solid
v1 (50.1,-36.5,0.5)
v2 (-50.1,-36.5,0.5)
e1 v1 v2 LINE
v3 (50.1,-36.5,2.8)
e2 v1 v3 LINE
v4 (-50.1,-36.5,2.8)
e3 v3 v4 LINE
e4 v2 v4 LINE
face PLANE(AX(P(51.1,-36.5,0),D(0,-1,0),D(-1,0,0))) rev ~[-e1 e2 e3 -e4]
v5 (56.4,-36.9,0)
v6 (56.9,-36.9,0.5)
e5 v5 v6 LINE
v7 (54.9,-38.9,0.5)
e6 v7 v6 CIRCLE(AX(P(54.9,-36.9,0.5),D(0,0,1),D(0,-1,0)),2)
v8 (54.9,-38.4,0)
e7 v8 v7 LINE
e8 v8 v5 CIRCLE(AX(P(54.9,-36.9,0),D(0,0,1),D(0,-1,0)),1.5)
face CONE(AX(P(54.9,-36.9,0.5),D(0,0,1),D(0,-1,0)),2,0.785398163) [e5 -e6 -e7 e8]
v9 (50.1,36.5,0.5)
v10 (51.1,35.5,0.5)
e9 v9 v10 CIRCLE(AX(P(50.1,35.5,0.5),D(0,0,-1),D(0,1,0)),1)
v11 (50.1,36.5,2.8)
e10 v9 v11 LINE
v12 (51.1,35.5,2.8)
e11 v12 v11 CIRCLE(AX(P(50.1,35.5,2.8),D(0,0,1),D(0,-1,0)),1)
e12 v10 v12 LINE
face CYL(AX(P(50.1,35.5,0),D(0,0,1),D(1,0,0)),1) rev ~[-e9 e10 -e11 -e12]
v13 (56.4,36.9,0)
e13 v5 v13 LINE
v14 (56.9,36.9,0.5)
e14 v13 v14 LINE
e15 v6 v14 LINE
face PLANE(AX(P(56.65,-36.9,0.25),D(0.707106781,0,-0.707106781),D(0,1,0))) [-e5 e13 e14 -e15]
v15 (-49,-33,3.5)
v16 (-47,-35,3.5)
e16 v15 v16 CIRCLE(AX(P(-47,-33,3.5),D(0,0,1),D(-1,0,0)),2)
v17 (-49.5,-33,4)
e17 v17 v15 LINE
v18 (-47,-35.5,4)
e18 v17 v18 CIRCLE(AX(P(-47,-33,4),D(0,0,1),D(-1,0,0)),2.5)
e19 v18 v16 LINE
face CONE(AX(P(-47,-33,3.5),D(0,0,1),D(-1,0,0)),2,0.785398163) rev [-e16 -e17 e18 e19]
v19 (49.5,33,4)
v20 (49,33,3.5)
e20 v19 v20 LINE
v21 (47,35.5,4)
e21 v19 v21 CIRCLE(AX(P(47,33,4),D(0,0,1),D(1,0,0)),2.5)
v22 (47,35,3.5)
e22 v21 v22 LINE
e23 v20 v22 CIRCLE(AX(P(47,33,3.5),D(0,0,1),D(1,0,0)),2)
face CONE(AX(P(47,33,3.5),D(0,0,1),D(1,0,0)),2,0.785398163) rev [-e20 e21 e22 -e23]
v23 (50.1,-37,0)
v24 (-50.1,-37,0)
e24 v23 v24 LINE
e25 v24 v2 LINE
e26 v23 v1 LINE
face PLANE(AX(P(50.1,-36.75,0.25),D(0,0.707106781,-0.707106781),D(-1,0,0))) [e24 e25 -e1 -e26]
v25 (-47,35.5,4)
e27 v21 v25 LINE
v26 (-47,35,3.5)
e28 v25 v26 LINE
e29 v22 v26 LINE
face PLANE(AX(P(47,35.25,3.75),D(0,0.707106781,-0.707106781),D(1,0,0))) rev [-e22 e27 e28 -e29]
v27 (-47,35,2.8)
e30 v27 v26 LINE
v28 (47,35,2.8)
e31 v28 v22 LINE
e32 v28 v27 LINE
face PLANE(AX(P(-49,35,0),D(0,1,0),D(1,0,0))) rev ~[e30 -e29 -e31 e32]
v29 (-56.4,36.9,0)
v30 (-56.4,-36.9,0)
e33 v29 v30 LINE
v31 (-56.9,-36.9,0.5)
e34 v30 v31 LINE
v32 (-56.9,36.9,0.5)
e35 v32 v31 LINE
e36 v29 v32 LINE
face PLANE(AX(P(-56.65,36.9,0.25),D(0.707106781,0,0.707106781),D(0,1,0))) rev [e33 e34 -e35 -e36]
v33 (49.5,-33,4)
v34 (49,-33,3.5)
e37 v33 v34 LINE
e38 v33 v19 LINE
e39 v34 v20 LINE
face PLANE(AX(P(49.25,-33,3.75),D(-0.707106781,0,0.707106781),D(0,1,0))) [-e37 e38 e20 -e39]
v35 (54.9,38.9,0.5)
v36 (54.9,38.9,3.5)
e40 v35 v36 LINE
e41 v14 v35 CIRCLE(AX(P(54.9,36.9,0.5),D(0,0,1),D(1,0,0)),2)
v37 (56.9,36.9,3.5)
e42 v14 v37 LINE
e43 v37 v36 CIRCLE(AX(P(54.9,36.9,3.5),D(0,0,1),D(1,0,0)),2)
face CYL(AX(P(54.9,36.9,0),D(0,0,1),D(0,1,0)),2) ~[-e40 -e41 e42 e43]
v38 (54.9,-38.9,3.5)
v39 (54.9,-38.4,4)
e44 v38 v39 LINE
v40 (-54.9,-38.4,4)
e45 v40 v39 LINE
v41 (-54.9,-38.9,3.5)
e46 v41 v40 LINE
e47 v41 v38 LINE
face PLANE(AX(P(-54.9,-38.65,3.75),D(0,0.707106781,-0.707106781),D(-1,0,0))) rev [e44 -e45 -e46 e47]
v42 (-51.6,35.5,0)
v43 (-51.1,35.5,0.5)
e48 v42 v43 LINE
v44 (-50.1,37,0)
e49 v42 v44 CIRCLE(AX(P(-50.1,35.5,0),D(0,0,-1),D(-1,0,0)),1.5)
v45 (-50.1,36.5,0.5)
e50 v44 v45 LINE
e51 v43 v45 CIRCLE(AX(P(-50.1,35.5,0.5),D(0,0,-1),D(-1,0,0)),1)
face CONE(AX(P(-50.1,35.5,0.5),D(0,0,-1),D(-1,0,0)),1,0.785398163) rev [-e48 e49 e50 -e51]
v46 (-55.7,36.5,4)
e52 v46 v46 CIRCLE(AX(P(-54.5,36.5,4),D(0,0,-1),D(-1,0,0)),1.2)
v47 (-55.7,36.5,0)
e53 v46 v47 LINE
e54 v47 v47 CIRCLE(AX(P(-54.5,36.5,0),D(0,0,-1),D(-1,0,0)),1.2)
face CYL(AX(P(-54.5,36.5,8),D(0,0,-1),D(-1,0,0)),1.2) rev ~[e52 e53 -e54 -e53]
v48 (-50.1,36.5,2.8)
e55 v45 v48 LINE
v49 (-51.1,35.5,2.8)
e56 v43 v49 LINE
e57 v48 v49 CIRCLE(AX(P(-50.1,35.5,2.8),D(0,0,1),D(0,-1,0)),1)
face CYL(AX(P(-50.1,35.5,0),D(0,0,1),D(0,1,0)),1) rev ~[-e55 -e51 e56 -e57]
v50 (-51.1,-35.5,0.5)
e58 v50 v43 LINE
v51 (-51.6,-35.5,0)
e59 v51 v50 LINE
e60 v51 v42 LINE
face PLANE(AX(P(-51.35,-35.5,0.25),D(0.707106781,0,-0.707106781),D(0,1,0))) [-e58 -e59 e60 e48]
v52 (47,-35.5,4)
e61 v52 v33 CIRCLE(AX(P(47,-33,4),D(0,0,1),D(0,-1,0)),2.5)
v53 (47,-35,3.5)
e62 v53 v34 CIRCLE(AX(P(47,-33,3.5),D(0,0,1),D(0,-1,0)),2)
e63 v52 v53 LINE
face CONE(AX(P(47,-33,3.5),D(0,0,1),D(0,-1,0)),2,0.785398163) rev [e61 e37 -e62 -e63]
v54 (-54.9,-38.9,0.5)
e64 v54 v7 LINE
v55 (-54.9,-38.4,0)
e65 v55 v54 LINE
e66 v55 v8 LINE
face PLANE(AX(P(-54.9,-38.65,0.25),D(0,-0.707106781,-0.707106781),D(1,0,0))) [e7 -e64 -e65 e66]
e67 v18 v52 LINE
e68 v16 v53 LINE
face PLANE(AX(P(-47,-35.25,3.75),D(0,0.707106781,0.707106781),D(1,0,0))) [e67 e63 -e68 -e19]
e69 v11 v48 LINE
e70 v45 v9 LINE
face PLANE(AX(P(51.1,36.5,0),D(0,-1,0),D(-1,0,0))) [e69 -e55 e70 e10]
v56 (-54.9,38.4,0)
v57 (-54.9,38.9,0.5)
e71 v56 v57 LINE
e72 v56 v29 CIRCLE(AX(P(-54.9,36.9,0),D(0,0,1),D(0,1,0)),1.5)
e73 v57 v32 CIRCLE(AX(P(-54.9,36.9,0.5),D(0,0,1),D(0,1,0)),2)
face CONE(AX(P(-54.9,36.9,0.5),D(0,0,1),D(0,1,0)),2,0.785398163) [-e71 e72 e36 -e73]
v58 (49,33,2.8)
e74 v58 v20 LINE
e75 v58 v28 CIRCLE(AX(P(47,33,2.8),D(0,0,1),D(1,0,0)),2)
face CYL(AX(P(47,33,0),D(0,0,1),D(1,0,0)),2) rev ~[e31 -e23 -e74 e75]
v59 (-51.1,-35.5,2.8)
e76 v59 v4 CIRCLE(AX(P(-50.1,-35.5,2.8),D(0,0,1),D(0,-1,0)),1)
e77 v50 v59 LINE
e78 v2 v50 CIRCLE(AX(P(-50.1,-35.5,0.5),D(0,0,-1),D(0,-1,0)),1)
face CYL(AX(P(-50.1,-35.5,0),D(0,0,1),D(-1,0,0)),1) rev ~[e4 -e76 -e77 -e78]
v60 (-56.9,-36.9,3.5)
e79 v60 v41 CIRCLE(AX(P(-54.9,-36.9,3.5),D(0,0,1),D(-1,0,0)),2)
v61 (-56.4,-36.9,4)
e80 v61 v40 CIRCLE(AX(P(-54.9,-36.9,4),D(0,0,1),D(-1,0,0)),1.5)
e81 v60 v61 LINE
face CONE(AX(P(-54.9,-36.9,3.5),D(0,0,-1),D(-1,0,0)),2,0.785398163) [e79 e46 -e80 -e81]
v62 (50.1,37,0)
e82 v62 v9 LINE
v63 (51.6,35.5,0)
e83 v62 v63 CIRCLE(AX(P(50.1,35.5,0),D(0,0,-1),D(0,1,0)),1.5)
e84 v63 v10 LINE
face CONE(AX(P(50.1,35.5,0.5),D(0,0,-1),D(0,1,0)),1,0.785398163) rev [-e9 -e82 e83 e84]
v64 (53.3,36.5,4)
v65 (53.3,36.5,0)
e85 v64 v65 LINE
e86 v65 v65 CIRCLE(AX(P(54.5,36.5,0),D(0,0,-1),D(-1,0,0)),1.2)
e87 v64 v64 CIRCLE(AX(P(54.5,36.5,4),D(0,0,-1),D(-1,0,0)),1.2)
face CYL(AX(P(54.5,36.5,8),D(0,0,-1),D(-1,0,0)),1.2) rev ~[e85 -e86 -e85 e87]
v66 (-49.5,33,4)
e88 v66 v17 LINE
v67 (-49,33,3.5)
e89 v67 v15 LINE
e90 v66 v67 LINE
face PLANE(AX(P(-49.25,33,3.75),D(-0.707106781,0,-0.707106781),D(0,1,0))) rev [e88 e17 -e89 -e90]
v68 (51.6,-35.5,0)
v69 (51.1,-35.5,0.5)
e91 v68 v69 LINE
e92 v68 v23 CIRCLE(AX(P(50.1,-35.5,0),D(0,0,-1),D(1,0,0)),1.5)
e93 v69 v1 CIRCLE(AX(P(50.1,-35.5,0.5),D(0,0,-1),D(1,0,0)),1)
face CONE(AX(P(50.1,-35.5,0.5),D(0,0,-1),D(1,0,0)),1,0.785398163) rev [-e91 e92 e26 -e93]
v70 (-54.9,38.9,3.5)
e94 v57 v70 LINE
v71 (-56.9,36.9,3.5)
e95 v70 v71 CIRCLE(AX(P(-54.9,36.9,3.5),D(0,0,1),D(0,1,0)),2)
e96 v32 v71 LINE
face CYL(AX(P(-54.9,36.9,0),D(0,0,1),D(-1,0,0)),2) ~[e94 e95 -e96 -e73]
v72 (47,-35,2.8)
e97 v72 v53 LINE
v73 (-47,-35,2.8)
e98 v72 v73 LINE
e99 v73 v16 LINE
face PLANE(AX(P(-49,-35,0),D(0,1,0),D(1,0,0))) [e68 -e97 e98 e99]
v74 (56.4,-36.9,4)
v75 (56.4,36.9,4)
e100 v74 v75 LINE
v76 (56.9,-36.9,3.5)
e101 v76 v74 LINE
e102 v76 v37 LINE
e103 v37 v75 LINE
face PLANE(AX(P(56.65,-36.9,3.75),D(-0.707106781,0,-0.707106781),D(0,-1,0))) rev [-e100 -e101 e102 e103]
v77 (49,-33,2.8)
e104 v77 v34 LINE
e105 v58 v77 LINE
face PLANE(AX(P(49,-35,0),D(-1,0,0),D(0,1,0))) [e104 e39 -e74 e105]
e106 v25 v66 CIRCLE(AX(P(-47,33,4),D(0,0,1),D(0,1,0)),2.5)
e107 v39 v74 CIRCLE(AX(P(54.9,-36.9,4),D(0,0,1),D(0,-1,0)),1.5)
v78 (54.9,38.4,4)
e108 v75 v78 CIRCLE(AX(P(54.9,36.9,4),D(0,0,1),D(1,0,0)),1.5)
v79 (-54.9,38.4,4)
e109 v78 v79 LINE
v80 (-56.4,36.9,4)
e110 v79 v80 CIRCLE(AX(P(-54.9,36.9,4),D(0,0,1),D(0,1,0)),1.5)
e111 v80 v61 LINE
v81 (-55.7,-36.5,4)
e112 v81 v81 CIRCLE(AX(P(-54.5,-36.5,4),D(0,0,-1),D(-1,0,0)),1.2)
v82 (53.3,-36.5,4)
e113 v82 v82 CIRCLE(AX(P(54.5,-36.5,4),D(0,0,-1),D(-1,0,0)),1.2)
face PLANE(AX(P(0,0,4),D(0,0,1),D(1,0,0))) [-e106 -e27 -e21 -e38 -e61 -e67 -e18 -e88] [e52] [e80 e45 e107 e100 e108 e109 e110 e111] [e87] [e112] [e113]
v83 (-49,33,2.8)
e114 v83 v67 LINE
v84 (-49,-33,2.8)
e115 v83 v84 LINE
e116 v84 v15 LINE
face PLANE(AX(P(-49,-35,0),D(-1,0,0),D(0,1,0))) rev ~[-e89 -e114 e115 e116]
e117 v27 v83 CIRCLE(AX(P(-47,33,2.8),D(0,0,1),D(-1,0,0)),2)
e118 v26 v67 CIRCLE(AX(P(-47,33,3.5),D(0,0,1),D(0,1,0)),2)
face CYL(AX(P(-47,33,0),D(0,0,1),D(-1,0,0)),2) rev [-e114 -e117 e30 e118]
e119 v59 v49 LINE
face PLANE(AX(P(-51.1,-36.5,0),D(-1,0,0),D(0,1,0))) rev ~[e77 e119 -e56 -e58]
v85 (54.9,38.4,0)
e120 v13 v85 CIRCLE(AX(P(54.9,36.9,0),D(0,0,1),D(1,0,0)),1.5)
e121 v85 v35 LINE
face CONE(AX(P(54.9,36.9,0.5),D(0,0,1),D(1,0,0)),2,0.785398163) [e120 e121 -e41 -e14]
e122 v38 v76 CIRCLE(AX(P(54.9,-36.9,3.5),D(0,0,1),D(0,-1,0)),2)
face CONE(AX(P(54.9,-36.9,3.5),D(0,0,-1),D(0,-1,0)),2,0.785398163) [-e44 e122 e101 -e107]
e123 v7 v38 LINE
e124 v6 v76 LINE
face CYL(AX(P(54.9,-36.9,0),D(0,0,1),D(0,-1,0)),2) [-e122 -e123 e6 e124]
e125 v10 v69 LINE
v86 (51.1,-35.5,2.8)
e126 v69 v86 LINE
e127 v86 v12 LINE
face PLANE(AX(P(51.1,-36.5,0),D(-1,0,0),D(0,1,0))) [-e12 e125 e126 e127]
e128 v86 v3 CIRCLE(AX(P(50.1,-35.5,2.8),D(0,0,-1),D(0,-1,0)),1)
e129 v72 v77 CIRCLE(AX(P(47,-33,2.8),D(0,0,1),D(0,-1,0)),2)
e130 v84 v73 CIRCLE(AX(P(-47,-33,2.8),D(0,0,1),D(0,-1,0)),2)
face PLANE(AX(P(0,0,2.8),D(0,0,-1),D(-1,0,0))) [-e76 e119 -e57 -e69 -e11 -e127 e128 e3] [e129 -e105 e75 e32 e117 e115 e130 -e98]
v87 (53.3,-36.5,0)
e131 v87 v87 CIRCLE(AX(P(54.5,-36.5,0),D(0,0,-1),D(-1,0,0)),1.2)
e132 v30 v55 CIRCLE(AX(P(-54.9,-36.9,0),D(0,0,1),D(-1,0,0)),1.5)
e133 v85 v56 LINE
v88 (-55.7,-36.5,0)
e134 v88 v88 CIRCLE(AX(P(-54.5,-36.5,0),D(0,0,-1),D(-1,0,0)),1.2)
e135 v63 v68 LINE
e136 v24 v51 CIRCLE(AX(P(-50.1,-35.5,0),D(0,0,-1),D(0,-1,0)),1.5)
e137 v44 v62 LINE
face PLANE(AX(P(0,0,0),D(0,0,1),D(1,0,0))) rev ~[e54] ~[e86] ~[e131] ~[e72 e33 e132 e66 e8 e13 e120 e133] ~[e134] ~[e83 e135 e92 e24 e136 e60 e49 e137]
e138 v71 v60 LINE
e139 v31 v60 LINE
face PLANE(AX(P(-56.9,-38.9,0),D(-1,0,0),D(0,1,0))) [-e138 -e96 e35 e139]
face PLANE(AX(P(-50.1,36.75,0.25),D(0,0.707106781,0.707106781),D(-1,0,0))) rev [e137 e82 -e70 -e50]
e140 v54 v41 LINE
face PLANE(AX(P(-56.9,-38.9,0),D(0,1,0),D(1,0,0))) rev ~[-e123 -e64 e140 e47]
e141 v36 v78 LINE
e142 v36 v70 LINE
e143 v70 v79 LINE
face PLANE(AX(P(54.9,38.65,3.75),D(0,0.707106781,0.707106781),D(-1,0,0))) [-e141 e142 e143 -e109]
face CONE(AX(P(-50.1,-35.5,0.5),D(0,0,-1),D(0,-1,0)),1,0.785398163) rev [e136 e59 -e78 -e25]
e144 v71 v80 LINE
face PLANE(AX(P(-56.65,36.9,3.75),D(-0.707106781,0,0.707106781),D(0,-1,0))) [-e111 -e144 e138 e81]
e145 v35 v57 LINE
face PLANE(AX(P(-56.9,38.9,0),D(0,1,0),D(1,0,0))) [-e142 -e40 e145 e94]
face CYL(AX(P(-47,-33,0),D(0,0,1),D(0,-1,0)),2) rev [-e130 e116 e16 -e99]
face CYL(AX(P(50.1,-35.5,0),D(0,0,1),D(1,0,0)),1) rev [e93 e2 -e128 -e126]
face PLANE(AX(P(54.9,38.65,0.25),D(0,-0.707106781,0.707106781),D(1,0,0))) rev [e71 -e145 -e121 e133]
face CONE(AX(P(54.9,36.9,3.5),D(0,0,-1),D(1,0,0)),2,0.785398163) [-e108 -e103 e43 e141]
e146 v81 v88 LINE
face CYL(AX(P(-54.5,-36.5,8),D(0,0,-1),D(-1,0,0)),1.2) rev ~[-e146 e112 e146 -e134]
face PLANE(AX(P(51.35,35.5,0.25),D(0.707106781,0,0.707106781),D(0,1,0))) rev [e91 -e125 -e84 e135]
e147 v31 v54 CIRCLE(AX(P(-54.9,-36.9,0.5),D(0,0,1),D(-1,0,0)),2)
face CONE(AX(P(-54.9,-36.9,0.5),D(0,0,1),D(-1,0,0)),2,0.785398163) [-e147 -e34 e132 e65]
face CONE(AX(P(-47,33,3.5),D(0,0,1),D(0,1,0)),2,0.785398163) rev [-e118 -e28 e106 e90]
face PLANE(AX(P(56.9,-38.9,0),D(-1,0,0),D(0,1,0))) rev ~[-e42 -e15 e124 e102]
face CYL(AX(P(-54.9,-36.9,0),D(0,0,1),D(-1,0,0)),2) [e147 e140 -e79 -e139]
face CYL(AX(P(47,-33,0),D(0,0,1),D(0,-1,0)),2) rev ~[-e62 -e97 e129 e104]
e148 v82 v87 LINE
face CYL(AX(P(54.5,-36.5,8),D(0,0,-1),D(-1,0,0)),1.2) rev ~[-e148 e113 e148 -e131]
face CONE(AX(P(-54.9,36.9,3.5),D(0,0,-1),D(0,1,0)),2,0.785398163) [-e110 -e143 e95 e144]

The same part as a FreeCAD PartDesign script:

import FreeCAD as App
import Part
import Sketcher


def edges_at(feature, points):
    """Names of the edges that pass closest to the given points."""
    edges = feature.Shape.Edges
    near = lambda p: min(range(len(edges)), key=lambda i: edges[i].distToShape(Part.Vertex(*p))[0])
    return sorted({f"Edge{near(p) + 1}" for p in points})

doc = App.newDocument("Part")
body = doc.addObject("PartDesign::Body", "Body")

# Sketch on XY plane
sketch1 = body.newObject("Sketcher::SketchObject", "Sketch")
sketch1.AttachmentSupport = (doc.getObject("XY_Plane"), [""])
sketch1.MapMode = "FlatFace"
sketch1.addGeometry(Part.LineSegment(App.Vector(-57, 39, 0), App.Vector(-57, -39, 0)), False)
sketch1.addGeometry(Part.LineSegment(App.Vector(-57, -39, 0), App.Vector(57, -39, 0)), False)
sketch1.addGeometry(Part.LineSegment(App.Vector(57, -39, 0), App.Vector(57, 39, 0)), False)
sketch1.addGeometry(Part.LineSegment(App.Vector(57, 39, 0), App.Vector(-57, 39, 0)), False)
sketch1.addGeometry(Part.LineSegment(App.Vector(49, -35, 0), App.Vector(-49, -35, 0)), False)
sketch1.addGeometry(Part.LineSegment(App.Vector(-49, -35, 0), App.Vector(-49, 35, 0)), False)
sketch1.addGeometry(Part.LineSegment(App.Vector(-49, 35, 0), App.Vector(49, 35, 0)), False)
sketch1.addGeometry(Part.LineSegment(App.Vector(49, 35, 0), App.Vector(49, -35, 0)), False)
sketch1.addConstraint(Sketcher.Constraint("Coincident", 0, 2, 1, 1))
sketch1.addConstraint(Sketcher.Constraint("Coincident", 1, 2, 2, 1))
sketch1.addConstraint(Sketcher.Constraint("Coincident", 2, 2, 3, 1))
sketch1.addConstraint(Sketcher.Constraint("Coincident", 3, 2, 0, 1))
sketch1.addConstraint(Sketcher.Constraint("Coincident", 4, 2, 5, 1))
sketch1.addConstraint(Sketcher.Constraint("Coincident", 5, 2, 6, 1))
sketch1.addConstraint(Sketcher.Constraint("Coincident", 6, 2, 7, 1))
sketch1.addConstraint(Sketcher.Constraint("Coincident", 7, 2, 4, 1))
sketch1.addConstraint(Sketcher.Constraint("Vertical", 0))
sketch1.addConstraint(Sketcher.Constraint("Horizontal", 1))
sketch1.addConstraint(Sketcher.Constraint("Vertical", 2))
sketch1.addConstraint(Sketcher.Constraint("Horizontal", 3))
sketch1.addConstraint(Sketcher.Constraint("Horizontal", 4))
sketch1.addConstraint(Sketcher.Constraint("Vertical", 5))
sketch1.addConstraint(Sketcher.Constraint("Horizontal", 6))
sketch1.addConstraint(Sketcher.Constraint("Vertical", 7))
sketch1.addConstraint(Sketcher.Constraint("Symmetric", 0, 2, 2, 2, -1, 1))
sketch1.addConstraint(Sketcher.Constraint("Symmetric", 4, 2, 6, 2, -1, 1))
sketch1.addConstraint(Sketcher.Constraint("DistanceX", 4, 2, 4, 1, 98.0))
sketch1.addConstraint(Sketcher.Constraint("DistanceY", 5, 1, 5, 2, 70.0))
sketch1.addConstraint(Sketcher.Constraint("DistanceX", 1, 1, 1, 2, 113.8))
sketch1.addConstraint(Sketcher.Constraint("DistanceY", 0, 2, 0, 1, 77.8))
pad1 = body.newObject("PartDesign::Pad", "Pad")
pad1.Profile = sketch1
pad1.Length = 4

# Sketch on XY plane
sketch2 = body.newObject("Sketcher::SketchObject", "Sketch001")
sketch2.AttachmentSupport = (doc.getObject("XY_Plane"), [""])
sketch2.MapMode = "FlatFace"
sketch2.AttachmentOffset = App.Placement(App.Vector(0, 0, 4), App.Rotation())
sketch2.addGeometry(Part.Circle(App.Vector(0, 0, 0), App.Vector(0, 0, 1), 1.2), False)
sketch2.addGeometry(Part.Circle(App.Vector(54.5, 36.5, 0), App.Vector(0, 0, 1), 1.2), False)
sketch2.addGeometry(Part.Circle(App.Vector(-54.5, -36.5, 0), App.Vector(0, 0, 1), 1.2), False)
sketch2.addGeometry(Part.Circle(App.Vector(-54.5, 36.5, 0), App.Vector(0, 0, 1), 1.2), False)
sketch2.addGeometry(Part.Circle(App.Vector(54.5, -36.5, 0), App.Vector(0, 0, 1), 1.2), False)
sketch2.addConstraint(Sketcher.Constraint("Coincident", 0, 3, -1, 1))
sketch2.addConstraint(Sketcher.Constraint("Equal", 0, 1))
sketch2.addConstraint(Sketcher.Constraint("Equal", 1, 2))
sketch2.addConstraint(Sketcher.Constraint("Equal", 2, 3))
sketch2.addConstraint(Sketcher.Constraint("Equal", 3, 4))
sketch2.addConstraint(Sketcher.Constraint("Symmetric", 1, 3, 2, 3, -1, 1))
sketch2.addConstraint(Sketcher.Constraint("Symmetric", 3, 3, 4, 3, -1, 1))
sketch2.addConstraint(Sketcher.Constraint("Symmetric", 1, 3, 3, 3, -2))
sketch2.addConstraint(Sketcher.Constraint("Diameter", 0, 2.4))
sketch2.addConstraint(Sketcher.Constraint("DistanceX", 2, 3, 1, 3, 109.0))
sketch2.addConstraint(Sketcher.Constraint("DistanceY", 2, 3, 1, 3, 73.0))
doc.recompute()
hole = body.newObject("PartDesign::Hole", "Hole")
hole.Profile = sketch2
hole.ThreadType = "None"
hole.Diameter = 2.4
hole.DepthType = "Dimension"
hole.Depth = 4
hole.DrillPoint = "Flat"
doc.recompute()

fillet = body.newObject("PartDesign::Fillet", "Fillet")
fillet.Base = (hole, edges_at(hole, [
    (56.9, -38.9, 2),
    (-56.9, -38.9, 2),
    (-56.9, 38.9, 2),
    (56.9, 38.9, 2),
]))
fillet.Radius = 2
doc.recompute()

fillet2 = body.newObject("PartDesign::Fillet", "Fillet001")
fillet2.Base = (fillet, edges_at(fillet, [
    (49, -35, 2),
    (49, 35, 2),
    (-49, 35, 2),
    (-49, -35, 2),
]))
fillet2.Radius = 2

# Sketch on XY plane
sketch3 = body.newObject("Sketcher::SketchObject", "Sketch002")
sketch3.AttachmentSupport = (doc.getObject("XY_Plane"), [""])
sketch3.MapMode = "FlatFace"
sketch3.addGeometry(Part.LineSegment(App.Vector(51, 36, 0), App.Vector(51, -36, 0)), False)
sketch3.addGeometry(Part.LineSegment(App.Vector(51, -36, 0), App.Vector(-51, -36, 0)), False)
sketch3.addGeometry(Part.LineSegment(App.Vector(-51, -36, 0), App.Vector(-51, 36, 0)), False)
sketch3.addGeometry(Part.LineSegment(App.Vector(-51, 36, 0), App.Vector(51, 36, 0)), False)
sketch3.addConstraint(Sketcher.Constraint("Coincident", 0, 2, 1, 1))
sketch3.addConstraint(Sketcher.Constraint("Coincident", 1, 2, 2, 1))
sketch3.addConstraint(Sketcher.Constraint("Coincident", 2, 2, 3, 1))
sketch3.addConstraint(Sketcher.Constraint("Coincident", 3, 2, 0, 1))
sketch3.addConstraint(Sketcher.Constraint("Vertical", 0))
sketch3.addConstraint(Sketcher.Constraint("Horizontal", 1))
sketch3.addConstraint(Sketcher.Constraint("Vertical", 2))
sketch3.addConstraint(Sketcher.Constraint("Horizontal", 3))
sketch3.addConstraint(Sketcher.Constraint("Symmetric", 0, 2, 2, 2, -1, 1))
sketch3.addConstraint(Sketcher.Constraint("DistanceY", 0, 2, 0, 1, 73.0))
sketch3.addConstraint(Sketcher.Constraint("DistanceX", 1, 2, 1, 1, 102.2))
pocket1 = body.newObject("PartDesign::Pocket", "Pocket")
pocket1.Profile = sketch3
pocket1.Length = 2.8
pocket1.Reversed = True
doc.recompute()

fillet3 = body.newObject("PartDesign::Fillet", "Fillet002")
fillet3.Base = (pocket1, edges_at(pocket1, [
    (-51.1, 36.5, 1.4),
    (-51.1, -36.5, 1.4),
    (51.1, -36.5, 1.4),
    (51.1, 36.5, 1.4),
]))
fillet3.Radius = 1
doc.recompute()

chamfer = body.newObject("PartDesign::Chamfer", "Chamfer")
chamfer.Base = (fillet3, edges_at(fillet3, [
    (0, -36.5, 0),
    (51.1, 0, 0),
    (0, 36.5, 0),
    (-51.1, 0, 0),
    (50.807, -36.207, 0),
    (-50.807, 36.207, 0),
    (-50.807, -36.207, 0),
    (50.807, 36.207, 0),
    (56.9, 0, 0),
    (56.9, 0, 4),
    (0, -38.9, 0),
    (-56.9, 0, 0),
    (0, 38.9, 0),
    (-56.314, 38.314, 0),
    (56.314, 38.314, 0),
    (-56.314, -38.314, 0),
    (56.314, -38.314, 0),
    (0, -38.9, 4),
    (0, 38.9, 4),
    (-56.9, 0, 4),
    (-56.314, 38.314, 4),
    (56.314, 38.314, 4),
    (-56.314, -38.314, 4),
    (56.314, -38.314, 4),
    (49, 0, 4),
    (0, 35, 4),
    (-49, 0, 4),
    (0, -35, 4),
    (48.414, 34.414, 4),
    (-48.414, -34.414, 4),
    (48.414, -34.414, 4),
    (-48.414, 34.414, 4),
]))
chamfer.Size = 0.5

doc.recompute()
